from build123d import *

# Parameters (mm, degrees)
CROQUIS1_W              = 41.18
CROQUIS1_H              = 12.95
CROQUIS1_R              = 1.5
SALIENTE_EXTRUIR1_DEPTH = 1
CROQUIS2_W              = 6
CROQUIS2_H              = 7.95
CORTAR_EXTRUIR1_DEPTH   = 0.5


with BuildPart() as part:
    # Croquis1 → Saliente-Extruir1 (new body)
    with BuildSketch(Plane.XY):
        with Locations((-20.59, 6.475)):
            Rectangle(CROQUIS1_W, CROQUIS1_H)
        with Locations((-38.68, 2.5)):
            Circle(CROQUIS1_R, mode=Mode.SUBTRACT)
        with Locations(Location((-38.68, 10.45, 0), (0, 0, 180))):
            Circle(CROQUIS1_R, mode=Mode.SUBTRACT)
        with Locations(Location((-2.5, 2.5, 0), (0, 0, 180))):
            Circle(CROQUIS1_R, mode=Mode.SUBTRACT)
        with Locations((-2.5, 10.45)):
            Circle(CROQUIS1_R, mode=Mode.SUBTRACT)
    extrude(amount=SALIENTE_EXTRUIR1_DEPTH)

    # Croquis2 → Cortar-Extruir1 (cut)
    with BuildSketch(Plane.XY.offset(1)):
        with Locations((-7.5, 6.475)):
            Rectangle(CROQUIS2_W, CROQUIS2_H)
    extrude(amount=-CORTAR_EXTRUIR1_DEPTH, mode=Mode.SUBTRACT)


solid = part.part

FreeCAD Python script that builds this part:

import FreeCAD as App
import Part
import Sketcher
Q = App.Units.Quantity

doc = App.newDocument("Part")
body = doc.addObject("PartDesign::Body", "Body")

# Sketch on XY plane
sketch1 = body.newObject("Sketcher::SketchObject", "Sketch")
sketch1.AttachmentSupport = (doc.getObject("XY_Plane"), [""])
sketch1.MapMode = "FlatFace"
sketch1.addGeometry([
    Part.LineSegment(App.Vector(-41.18, 12.95, 0), App.Vector(-41.18, 0, 0)),  # 0
    Part.LineSegment(App.Vector(-41.18, 0, 0), App.Vector(0, 0, 0)),  # 1
    Part.LineSegment(App.Vector(0, 0, 0), App.Vector(0, 12.95, 0)),  # 2
    Part.LineSegment(App.Vector(0, 12.95, 0), App.Vector(-41.18, 12.95, 0)),  # 3
    Part.Circle(App.Vector(-38.68, 2.5, 0), App.Vector(0, 0, 1), 1.5),  # 4
    Part.Circle(App.Vector(-2.5, 2.5, 0), App.Vector(0, 0, 1), 1.5),  # 5
    Part.Circle(App.Vector(-38.68, 10.45, 0), App.Vector(0, 0, 1), 1.5),  # 6
    Part.Circle(App.Vector(-2.5, 10.45, 0), App.Vector(0, 0, 1), 1.5),  # 7
], False)
sketch1.addConstraint([
    Sketcher.Constraint("Coincident", 0, 2, 1, 1),
    Sketcher.Constraint("Coincident", 1, 2, 2, 1),
    Sketcher.Constraint("Coincident", 2, 2, 3, 1),
    Sketcher.Constraint("Coincident", 3, 2, 0, 1),
    Sketcher.Constraint("Vertical", 0),
    Sketcher.Constraint("Horizontal", 1),
    Sketcher.Constraint("Vertical", 2),
    Sketcher.Constraint("Horizontal", 3),
    Sketcher.Constraint("Coincident", 1, 2, -1, 1),
    Sketcher.Constraint("Equal", 4, 5),
    Sketcher.Constraint("Equal", 5, 6),
    Sketcher.Constraint("Equal", 6, 7),
    Sketcher.Constraint("Horizontal", 4, 3, 5, 3),
    Sketcher.Constraint("Horizontal", 6, 3, 7, 3),
    Sketcher.Constraint("Vertical", 4, 3, 6, 3),
    Sketcher.Constraint("Vertical", 5, 3, 7, 3),
    Sketcher.Constraint("Diameter", 4, Q("3 mm")),
    Sketcher.Constraint("DistanceX", 1, 1, 1, 2, Q("41.18 mm")),
    Sketcher.Constraint("DistanceY", 0, 2, 0, 1, Q("12.95 mm")),
    Sketcher.Constraint("DistanceY", -1, 1, 4, 3, Q("2.5 mm")),
    Sketcher.Constraint("DistanceX", 5, 3, -1, 1, Q("2.5 mm")),
    Sketcher.Constraint("DistanceX", 0, 2, 4, 3, Q("2.5 mm")),
    Sketcher.Constraint("DistanceY", 7, 3, 2, 2, Q("2.5 mm")),
])
pad1 = body.newObject("PartDesign::Pad", "Pad")
pad1.Profile = sketch1
pad1.Length = 1

# Sketch on XY plane
sketch2 = body.newObject("Sketcher::SketchObject", "Sketch001")
sketch2.AttachmentSupport = (doc.getObject("XY_Plane"), [""])
sketch2.MapMode = "FlatFace"
sketch2.AttachmentOffset = App.Placement(App.Vector(0, 0, 1), App.Rotation())
sketch2.addGeometry([
    Part.LineSegment(App.Vector(-10.5, 10.45, 0), App.Vector(-10.5, 2.5, 0)),
    Part.LineSegment(App.Vector(-10.5, 2.5, 0), App.Vector(-4.5, 2.5, 0)),
    Part.LineSegment(App.Vector(-4.5, 2.5, 0), App.Vector(-4.5, 10.45, 0)),
    Part.LineSegment(App.Vector(-4.5, 10.45, 0), App.Vector(-10.5, 10.45, 0)),
], False)
sketch2.addConstraint([
    Sketcher.Constraint("Coincident", 0, 2, 1, 1),
    Sketcher.Constraint("Coincident", 1, 2, 2, 1),
    Sketcher.Constraint("Coincident", 2, 2, 3, 1),
    Sketcher.Constraint("Coincident", 3, 2, 0, 1),
    Sketcher.Constraint("Vertical", 0),
    Sketcher.Constraint("Horizontal", 1),
    Sketcher.Constraint("Vertical", 2),
    Sketcher.Constraint("Horizontal", 3),
    Sketcher.Constraint("DistanceX", 1, 1, 1, 2, Q("6 mm")),
    Sketcher.Constraint("DistanceY", 0, 2, 0, 1, Q("7.95 mm")),
    Sketcher.Constraint("DistanceX", 0, 2, -1, 1, Q("10.5 mm")),
    Sketcher.Constraint("DistanceY", -1, 1, 0, 2, Q("2.5 mm")),
])
pocket1 = body.newObject("PartDesign::Pocket", "Pocket")
pocket1.Profile = sketch2
pocket1.Length = 0.5

doc.recompute()
